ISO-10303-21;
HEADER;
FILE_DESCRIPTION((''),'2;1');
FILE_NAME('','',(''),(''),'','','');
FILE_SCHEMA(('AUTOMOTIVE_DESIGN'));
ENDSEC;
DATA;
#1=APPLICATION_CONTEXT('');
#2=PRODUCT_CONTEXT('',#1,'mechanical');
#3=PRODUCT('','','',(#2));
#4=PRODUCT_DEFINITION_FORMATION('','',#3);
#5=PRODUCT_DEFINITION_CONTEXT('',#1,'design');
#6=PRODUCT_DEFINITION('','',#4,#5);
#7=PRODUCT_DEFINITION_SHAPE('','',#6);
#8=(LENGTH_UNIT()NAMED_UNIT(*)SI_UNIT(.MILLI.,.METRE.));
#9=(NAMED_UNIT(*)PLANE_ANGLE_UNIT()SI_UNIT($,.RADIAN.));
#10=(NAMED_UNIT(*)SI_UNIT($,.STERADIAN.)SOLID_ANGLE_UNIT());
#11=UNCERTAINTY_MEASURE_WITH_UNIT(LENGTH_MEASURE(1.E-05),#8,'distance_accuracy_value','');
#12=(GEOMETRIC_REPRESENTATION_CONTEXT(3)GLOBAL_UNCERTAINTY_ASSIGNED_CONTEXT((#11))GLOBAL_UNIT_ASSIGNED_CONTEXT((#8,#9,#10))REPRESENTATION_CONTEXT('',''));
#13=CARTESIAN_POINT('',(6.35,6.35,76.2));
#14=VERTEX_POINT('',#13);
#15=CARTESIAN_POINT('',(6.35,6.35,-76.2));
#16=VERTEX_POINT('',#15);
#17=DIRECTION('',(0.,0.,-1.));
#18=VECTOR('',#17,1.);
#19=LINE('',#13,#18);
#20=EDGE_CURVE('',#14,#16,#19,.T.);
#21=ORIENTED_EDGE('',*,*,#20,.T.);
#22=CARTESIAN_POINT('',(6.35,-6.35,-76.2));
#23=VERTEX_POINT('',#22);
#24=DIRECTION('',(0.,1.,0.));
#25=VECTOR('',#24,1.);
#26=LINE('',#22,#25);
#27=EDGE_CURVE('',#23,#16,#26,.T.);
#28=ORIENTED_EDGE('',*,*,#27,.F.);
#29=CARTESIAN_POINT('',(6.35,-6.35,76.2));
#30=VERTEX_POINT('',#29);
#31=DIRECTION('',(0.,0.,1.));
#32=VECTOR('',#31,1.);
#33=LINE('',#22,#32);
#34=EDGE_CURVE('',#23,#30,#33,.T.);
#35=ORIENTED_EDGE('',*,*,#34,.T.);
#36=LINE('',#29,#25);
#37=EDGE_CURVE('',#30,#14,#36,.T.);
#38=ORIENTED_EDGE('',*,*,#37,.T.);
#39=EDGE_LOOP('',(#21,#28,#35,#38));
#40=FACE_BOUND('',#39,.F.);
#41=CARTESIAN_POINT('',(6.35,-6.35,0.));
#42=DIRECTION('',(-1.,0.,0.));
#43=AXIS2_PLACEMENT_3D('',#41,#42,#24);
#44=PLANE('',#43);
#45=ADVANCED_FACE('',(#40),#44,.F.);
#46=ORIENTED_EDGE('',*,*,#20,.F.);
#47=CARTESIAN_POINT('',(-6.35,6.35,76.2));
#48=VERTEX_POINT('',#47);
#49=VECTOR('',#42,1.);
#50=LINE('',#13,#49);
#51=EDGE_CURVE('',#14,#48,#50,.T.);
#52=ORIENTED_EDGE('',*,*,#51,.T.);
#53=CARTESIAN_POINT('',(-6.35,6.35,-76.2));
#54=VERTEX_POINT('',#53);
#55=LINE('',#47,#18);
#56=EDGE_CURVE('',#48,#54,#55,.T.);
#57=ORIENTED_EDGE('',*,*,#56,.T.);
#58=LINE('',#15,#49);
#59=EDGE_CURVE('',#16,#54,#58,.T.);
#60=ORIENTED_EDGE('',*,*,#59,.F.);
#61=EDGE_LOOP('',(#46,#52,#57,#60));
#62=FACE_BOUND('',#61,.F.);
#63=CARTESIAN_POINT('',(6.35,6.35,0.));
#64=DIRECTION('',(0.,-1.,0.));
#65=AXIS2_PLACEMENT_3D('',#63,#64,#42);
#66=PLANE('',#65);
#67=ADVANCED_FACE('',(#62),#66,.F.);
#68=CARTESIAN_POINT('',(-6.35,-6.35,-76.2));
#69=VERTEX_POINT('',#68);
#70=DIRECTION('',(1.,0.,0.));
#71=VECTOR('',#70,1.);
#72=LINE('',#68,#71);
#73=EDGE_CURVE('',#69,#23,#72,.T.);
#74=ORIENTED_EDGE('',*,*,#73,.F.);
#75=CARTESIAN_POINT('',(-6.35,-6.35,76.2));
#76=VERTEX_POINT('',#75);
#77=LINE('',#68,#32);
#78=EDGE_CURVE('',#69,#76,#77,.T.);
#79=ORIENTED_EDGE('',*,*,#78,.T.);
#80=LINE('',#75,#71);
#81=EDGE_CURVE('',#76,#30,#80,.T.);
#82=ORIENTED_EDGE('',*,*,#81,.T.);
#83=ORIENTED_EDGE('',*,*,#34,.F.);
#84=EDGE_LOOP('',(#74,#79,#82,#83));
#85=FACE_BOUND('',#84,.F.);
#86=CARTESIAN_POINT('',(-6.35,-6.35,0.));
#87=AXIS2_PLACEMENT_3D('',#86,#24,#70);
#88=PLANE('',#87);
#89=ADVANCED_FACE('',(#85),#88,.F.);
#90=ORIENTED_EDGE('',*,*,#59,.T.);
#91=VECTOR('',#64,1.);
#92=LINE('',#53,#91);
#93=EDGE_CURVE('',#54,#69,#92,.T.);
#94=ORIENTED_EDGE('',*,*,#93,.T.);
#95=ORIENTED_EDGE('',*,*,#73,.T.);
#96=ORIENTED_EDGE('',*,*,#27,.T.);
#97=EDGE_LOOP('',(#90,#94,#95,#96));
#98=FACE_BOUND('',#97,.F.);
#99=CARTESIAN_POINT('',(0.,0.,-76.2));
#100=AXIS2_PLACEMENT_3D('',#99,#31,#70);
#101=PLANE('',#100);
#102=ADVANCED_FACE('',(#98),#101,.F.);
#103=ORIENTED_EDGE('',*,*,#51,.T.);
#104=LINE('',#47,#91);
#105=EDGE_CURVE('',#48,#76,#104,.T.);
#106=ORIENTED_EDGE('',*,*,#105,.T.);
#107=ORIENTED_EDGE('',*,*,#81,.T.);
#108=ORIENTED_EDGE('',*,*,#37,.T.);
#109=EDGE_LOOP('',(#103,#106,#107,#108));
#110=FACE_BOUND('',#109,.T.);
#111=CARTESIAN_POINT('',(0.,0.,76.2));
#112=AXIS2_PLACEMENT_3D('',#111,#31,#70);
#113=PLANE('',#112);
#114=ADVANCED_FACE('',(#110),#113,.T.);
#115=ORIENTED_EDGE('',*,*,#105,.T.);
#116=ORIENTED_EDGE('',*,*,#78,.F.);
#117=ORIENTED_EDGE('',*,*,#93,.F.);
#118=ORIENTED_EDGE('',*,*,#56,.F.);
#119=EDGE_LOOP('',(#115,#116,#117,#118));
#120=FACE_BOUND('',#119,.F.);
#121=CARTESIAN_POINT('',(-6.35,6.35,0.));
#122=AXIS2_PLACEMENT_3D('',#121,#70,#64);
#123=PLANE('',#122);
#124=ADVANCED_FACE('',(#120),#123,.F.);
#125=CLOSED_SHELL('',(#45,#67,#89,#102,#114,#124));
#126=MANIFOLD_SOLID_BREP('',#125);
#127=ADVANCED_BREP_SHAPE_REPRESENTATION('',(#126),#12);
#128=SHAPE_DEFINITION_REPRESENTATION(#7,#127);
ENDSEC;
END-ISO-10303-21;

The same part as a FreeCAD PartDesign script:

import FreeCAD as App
import Part
import Sketcher
Q = App.Units.Quantity


def add_polygon(sketch, points):
    """Adds a closed chain of lines whose ends are joined by coincident constraints."""
    first, n = sketch.GeometryCount, len(points)
    for a, b in zip(points, points[1:] + points[:1]):
        sketch.addGeometry(Part.LineSegment(App.Vector(*a, 0), App.Vector(*b, 0)), False)
    for i in range(n):
        sketch.addConstraint(Sketcher.Constraint("Coincident", first + i, 2, first + (i + 1) % n, 1))

doc = App.newDocument("Part")
body = doc.addObject("PartDesign::Body", "Body")

# Sketch on XY plane
sketch1 = body.newObject("Sketcher::SketchObject", "Sketch")
sketch1.AttachmentSupport = (doc.getObject("XY_Plane"), [""])
sketch1.MapMode = "FlatFace"
add_polygon(sketch1, [(-6.35, 6.35), (-6.35, -6.35), (6.35, -6.35), (6.35, 6.35)])  # lines 0-3
sketch1.addConstraint(Sketcher.Constraint("Vertical", 0))
sketch1.addConstraint(Sketcher.Constraint("Horizontal", 1))
sketch1.addConstraint(Sketcher.Constraint("Vertical", 2))
sketch1.addConstraint(Sketcher.Constraint("Horizontal", 3))
sketch1.addConstraint(Sketcher.Constraint("Symmetric", 0, 2, 2, 2, -1, 1))
sketch1.addConstraint(Sketcher.Constraint("Equal", 3, 0))
sketch1.addConstraint(Sketcher.Constraint("DistanceX", 1, 1, 1, 2, Q("0.5 in")))
pad1 = body.newObject("PartDesign::Pad", "Pad")
pad1.Profile = sketch1
pad1.Length = Q("6 in")
pad1.Midplane = True

doc.recompute()
